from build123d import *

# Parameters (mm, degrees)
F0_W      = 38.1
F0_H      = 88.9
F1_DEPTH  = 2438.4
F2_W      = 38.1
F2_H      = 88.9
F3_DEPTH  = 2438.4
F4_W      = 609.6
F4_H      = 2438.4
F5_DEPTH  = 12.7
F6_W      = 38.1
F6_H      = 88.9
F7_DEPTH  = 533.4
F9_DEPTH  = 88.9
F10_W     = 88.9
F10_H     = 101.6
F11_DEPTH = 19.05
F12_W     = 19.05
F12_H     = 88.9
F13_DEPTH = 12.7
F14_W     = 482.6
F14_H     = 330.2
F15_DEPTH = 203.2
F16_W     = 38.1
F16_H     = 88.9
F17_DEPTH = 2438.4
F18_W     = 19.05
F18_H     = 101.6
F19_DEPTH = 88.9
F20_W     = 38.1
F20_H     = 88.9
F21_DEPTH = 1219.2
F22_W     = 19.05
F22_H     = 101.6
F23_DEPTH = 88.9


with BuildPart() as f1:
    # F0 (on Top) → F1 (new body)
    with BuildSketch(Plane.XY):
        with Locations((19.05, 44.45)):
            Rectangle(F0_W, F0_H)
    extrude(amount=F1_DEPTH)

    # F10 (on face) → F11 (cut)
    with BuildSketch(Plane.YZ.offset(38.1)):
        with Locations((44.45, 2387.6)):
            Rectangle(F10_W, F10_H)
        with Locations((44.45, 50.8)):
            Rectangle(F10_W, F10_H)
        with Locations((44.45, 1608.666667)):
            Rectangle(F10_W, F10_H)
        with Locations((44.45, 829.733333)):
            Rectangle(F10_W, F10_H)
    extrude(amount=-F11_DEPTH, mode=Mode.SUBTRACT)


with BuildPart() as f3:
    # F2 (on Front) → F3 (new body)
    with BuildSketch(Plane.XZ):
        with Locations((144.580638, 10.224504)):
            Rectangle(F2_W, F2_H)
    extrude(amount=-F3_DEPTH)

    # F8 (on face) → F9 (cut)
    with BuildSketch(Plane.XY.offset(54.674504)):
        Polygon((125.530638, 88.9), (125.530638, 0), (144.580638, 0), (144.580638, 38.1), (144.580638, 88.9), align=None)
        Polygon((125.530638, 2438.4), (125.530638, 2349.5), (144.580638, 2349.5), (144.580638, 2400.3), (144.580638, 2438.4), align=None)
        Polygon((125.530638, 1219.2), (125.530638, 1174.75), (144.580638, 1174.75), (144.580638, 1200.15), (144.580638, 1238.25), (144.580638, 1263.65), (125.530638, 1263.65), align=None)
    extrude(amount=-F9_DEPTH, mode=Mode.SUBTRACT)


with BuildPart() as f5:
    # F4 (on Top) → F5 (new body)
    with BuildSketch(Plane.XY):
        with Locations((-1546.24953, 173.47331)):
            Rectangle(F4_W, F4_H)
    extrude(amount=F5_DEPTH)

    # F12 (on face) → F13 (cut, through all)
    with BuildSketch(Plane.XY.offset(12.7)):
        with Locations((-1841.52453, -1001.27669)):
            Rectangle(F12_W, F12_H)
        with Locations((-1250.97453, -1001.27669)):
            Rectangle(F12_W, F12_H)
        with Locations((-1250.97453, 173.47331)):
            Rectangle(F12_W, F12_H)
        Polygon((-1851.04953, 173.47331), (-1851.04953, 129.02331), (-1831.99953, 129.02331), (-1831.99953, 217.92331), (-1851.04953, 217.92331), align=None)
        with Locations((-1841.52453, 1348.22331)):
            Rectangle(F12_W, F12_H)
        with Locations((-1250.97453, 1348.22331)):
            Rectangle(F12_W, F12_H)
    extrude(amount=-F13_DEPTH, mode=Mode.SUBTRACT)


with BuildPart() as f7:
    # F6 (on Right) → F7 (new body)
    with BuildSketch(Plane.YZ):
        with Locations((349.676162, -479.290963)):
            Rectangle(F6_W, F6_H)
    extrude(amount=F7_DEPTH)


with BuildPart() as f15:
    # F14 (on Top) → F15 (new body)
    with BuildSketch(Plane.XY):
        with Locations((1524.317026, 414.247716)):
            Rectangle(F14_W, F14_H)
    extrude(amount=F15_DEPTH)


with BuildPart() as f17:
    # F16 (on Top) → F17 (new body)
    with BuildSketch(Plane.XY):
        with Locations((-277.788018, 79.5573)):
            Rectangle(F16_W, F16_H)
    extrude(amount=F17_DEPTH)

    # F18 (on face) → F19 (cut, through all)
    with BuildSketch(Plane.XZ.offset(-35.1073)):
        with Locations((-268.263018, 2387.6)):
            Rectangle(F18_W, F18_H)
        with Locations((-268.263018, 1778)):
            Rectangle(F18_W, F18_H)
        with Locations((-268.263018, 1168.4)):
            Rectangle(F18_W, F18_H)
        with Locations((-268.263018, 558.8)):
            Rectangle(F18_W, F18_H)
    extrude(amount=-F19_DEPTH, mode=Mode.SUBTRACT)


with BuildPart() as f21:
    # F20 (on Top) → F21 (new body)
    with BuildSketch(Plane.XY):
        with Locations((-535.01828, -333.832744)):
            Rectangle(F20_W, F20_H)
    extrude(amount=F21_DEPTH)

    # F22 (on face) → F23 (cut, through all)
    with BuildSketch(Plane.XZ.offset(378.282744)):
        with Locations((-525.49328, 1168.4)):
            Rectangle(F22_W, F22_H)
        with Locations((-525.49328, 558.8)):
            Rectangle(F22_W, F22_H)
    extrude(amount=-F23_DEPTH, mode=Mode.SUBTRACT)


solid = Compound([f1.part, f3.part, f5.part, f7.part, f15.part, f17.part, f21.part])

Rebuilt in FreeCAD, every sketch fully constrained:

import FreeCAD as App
import Part
import Sketcher
Q = App.Units.Quantity


def add_polygon(sketch, points):
    """Adds a closed chain of lines whose ends are joined by coincident constraints."""
    first, n = sketch.GeometryCount, len(points)
    for a, b in zip(points, points[1:] + points[:1]):
        sketch.addGeometry(Part.LineSegment(App.Vector(*a, 0), App.Vector(*b, 0)), False)
    for i in range(n):
        sketch.addConstraint(Sketcher.Constraint("Coincident", first + i, 2, first + (i + 1) % n, 1))

doc = App.newDocument("Part")
body = doc.addObject("PartDesign::Body", "Body")

# Sketch on XY plane
sketch1 = body.newObject("Sketcher::SketchObject", "Sketch")
sketch1.AttachmentSupport = (doc.getObject("XY_Plane"), [""])
sketch1.MapMode = "FlatFace"
add_polygon(sketch1, [(0, 89), (0, 0), (38, 0), (38, 89)])  # lines 0-3
sketch1.addConstraint([
    Sketcher.Constraint("Vertical", 0),
    Sketcher.Constraint("Horizontal", 1),
    Sketcher.Constraint("Vertical", 2),
    Sketcher.Constraint("Horizontal", 3),
    Sketcher.Constraint("Coincident", 0, 2, -1, 1),
    Sketcher.Constraint("DistanceX", 1, 1, 1, 2, Q("1.5 in")),
    Sketcher.Constraint("DistanceY", 0, 2, 0, 1, Q("3.5 in")),
])
pad1 = body.newObject("PartDesign::Pad", "Pad")
pad1.Profile = sketch1
pad1.Length = Q("96 in")

# Sketch on YZ plane
sketch2 = body.newObject("Sketcher::SketchObject", "Sketch001")
sketch2.AttachmentSupport = (doc.getObject("YZ_Plane"), [""])
sketch2.MapMode = "FlatFace"
sketch2.AttachmentOffset = App.Placement(App.Vector(0, 0, 1.5 * 25.4), App.Rotation())
add_polygon(sketch2, [(0, 2438), (0, 2337), (89, 2337), (89, 2438)])  # lines 0-3
add_polygon(sketch2, [(0, 102), (0, 0), (89, 0), (89, 102)])  # lines 4-7
add_polygon(sketch2, [(0, 1659), (0, 1558), (89, 1558), (89, 1659)])  # lines 8-11
add_polygon(sketch2, [(0, 881), (0, 779), (89, 779), (89, 881)])  # lines 12-15
sketch2.addConstraint([
    Sketcher.Constraint("Vertical", 0),
    Sketcher.Constraint("Horizontal", 1),
    Sketcher.Constraint("Vertical", 2),
    Sketcher.Constraint("Horizontal", 3),
    Sketcher.Constraint("Vertical", 4),
    Sketcher.Constraint("Horizontal", 5),
    Sketcher.Constraint("Vertical", 6),
    Sketcher.Constraint("Horizontal", 7),
    Sketcher.Constraint("Vertical", 8),
    Sketcher.Constraint("Horizontal", 9),
    Sketcher.Constraint("Vertical", 10),
    Sketcher.Constraint("Horizontal", 11),
    Sketcher.Constraint("Vertical", 12),
    Sketcher.Constraint("Horizontal", 13),
    Sketcher.Constraint("Vertical", 14),
    Sketcher.Constraint("Horizontal", 15),
    Sketcher.Constraint("Coincident", 4, 2, -1, 1),
    Sketcher.Constraint("PointOnObject", 0, 2, -2),
    Sketcher.Constraint("PointOnObject", 8, 2, -2),
    Sketcher.Constraint("PointOnObject", 12, 2, -2),
    Sketcher.Constraint("Vertical", 2, 2, 5, 2),
    Sketcher.Constraint("Vertical", 6, 2, 9, 2),
    Sketcher.Constraint("Vertical", 10, 2, 13, 2),
    Sketcher.Constraint("Equal", 2, 4),
    Sketcher.Constraint("Equal", 6, 8),
    Sketcher.Constraint("Equal", 10, 12),
    Sketcher.Constraint("DistanceY", 0, 2, 0, 1, Q("4 in")),
    Sketcher.Constraint("DistanceX", 1, 1, 1, 2, Q("3.5 in")),
    Sketcher.Constraint("DistanceY", -1, 1, 0, 2, Q("92 in")),
    Sketcher.Constraint("DistanceY", -1, 1, 8, 2, 1557.866667),
    Sketcher.Constraint("DistanceY", -1, 1, 12, 2, 778.933333),
])
pocket1 = body.newObject("PartDesign::Pocket", "Pocket")
pocket1.Profile = sketch2
pocket1.Length = Q("0.75 in")
body2 = doc.addObject("PartDesign::Body", "Body001")

# Sketch on XZ plane
sketch3 = body2.newObject("Sketcher::SketchObject", "Sketch002")
sketch3.AttachmentSupport = (doc.getObject("XZ_Plane001"), [""])
sketch3.MapMode = "FlatFace"
add_polygon(sketch3, [(126, 55), (126, -34), (164, -34), (164, 55)])  # lines 0-3
sketch3.addConstraint([
    Sketcher.Constraint("Vertical", 0),
    Sketcher.Constraint("Horizontal", 1),
    Sketcher.Constraint("Vertical", 2),
    Sketcher.Constraint("Horizontal", 3),
    Sketcher.Constraint("DistanceX", 1, 1, 1, 2, Q("1.5 in")),
    Sketcher.Constraint("DistanceY", 0, 2, 0, 1, Q("3.5 in")),
    Sketcher.Constraint("DistanceX", -1, 1, 1, 2, 163.630638),
    Sketcher.Constraint("DistanceY", 0, 2, -1, 1, 34.225496),
])
pad2 = body2.newObject("PartDesign::Pad", "Pad001")
pad2.Profile = sketch3
pad2.Length = Q("96 in")
pad2.Reversed = True

# Sketch on XY plane
sketch4 = body2.newObject("Sketcher::SketchObject", "Sketch003")
sketch4.AttachmentSupport = (doc.getObject("XY_Plane001"), [""])
sketch4.MapMode = "FlatFace"
sketch4.AttachmentOffset = App.Placement(App.Vector(0, 0, 54.674504), App.Rotation())
add_polygon(sketch4, [(126, 89), (126, 0), (145, 0), (145, 89)])  # lines 0-3
add_polygon(sketch4, [(126, 2438), (126, 2350), (145, 2350), (145, 2438)])  # lines 4-7
add_polygon(sketch4, [(126, 1175), (145, 1175), (145, 1264), (126, 1264)])  # lines 8-11
sketch4.addConstraint([
    Sketcher.Constraint("Vertical", 0),
    Sketcher.Constraint("Horizontal", 1),
    Sketcher.Constraint("Vertical", 2),
    Sketcher.Constraint("Horizontal", 3),
    Sketcher.Constraint("Vertical", 4),
    Sketcher.Constraint("Horizontal", 5),
    Sketcher.Constraint("Vertical", 6),
    Sketcher.Constraint("Horizontal", 7),
    Sketcher.Constraint("Horizontal", 8),
    Sketcher.Constraint("Vertical", 9),
    Sketcher.Constraint("Horizontal", 10),
    Sketcher.Constraint("Vertical", 11),
    Sketcher.Constraint("PointOnObject", 0, 2, -1),
    Sketcher.Constraint("Vertical", 3, 2, 4, 2),
    Sketcher.Constraint("Vertical", 2, 2, 5, 2),
    Sketcher.Constraint("Vertical", 6, 2, 8, 2),
    Sketcher.Constraint("Vertical", 7, 2, 10, 2),
    Sketcher.Constraint("Equal", 2, 4),
    Sketcher.Constraint("Equal", 6, 9),
    Sketcher.Constraint("DistanceY", 0, 2, 0, 1, Q("3.5 in")),
    Sketcher.Constraint("DistanceY", -1, 1, 6, 2, Q("96 in")),
    Sketcher.Constraint("DistanceX", 1, 1, 1, 2, Q("0.75 in")),
    Sketcher.Constraint("DistanceY", -1, 1, 8, 2, Q("46.25 in")),
    Sketcher.Constraint("DistanceX", -1, 1, 1, 2, 144.580638),
])
pocket2 = body2.newObject("PartDesign::Pocket", "Pocket001")
pocket2.Profile = sketch4
pocket2.Length = Q("3.5 in")
body3 = doc.addObject("PartDesign::Body", "Body002")

# Sketch on XY plane
sketch5 = body3.newObject("Sketcher::SketchObject", "Sketch004")
sketch5.AttachmentSupport = (doc.getObject("XY_Plane002"), [""])
sketch5.MapMode = "FlatFace"
add_polygon(sketch5, [(-1851, 1393), (-1851, -1046), (-1241, -1046), (-1241, 1393)])  # lines 0-3
sketch5.addConstraint([
    Sketcher.Constraint("Vertical", 0),
    Sketcher.Constraint("Horizontal", 1),
    Sketcher.Constraint("Vertical", 2),
    Sketcher.Constraint("Horizontal", 3),
    Sketcher.Constraint("DistanceX", 1, 1, 1, 2, Q("24 in")),
    Sketcher.Constraint("DistanceY", 0, 2, 0, 1, Q("96 in")),
    Sketcher.Constraint("DistanceX", 0, 2, -1, 1, 1851.04953),
    Sketcher.Constraint("DistanceY", 0, 2, -1, 1, 1045.72669),
])
pad3 = body3.newObject("PartDesign::Pad", "Pad002")
pad3.Profile = sketch5
pad3.Length = Q("0.5 in")

# Sketch on XY plane
sketch6 = body3.newObject("Sketcher::SketchObject", "Sketch005")
sketch6.AttachmentSupport = (doc.getObject("XY_Plane002"), [""])
sketch6.MapMode = "FlatFace"
sketch6.AttachmentOffset = App.Placement(App.Vector(0, 0, 0.5 * 25.4), App.Rotation())
add_polygon(sketch6, [(-1851, -957), (-1851, -1046), (-1832, -1046), (-1832, -957)])  # lines 0-3
add_polygon(sketch6, [(-1260, -957), (-1260, -1046), (-1241, -1046), (-1241, -957)])  # lines 4-7
add_polygon(sketch6, [(-1260, 218), (-1260, 129), (-1241, 129), (-1241, 218)])  # lines 8-11
add_polygon(sketch6, [(-1851, 129), (-1832, 129), (-1832, 218), (-1851, 218)])  # lines 12-15
add_polygon(sketch6, [(-1851, 1393), (-1851, 1304), (-1832, 1304), (-1832, 1393)])  # lines 16-19
add_polygon(sketch6, [(-1260, 1393), (-1260, 1304), (-1241, 1304), (-1241, 1393)])  # lines 20-23
sketch6.addConstraint([
    Sketcher.Constraint("Vertical", 0),
    Sketcher.Constraint("Horizontal", 1),
    Sketcher.Constraint("Vertical", 2),
    Sketcher.Constraint("Horizontal", 3),
    Sketcher.Constraint("Vertical", 4),
    Sketcher.Constraint("Horizontal", 5),
    Sketcher.Constraint("Vertical", 6),
    Sketcher.Constraint("Horizontal", 7),
    Sketcher.Constraint("Vertical", 8),
    Sketcher.Constraint("Horizontal", 9),
    Sketcher.Constraint("Vertical", 10),
    Sketcher.Constraint("Horizontal", 11),
    Sketcher.Constraint("Horizontal", 12),
    Sketcher.Constraint("Vertical", 13),
    Sketcher.Constraint("Horizontal", 14),
    Sketcher.Constraint("Vertical", 15),
    Sketcher.Constraint("Vertical", 16),
    Sketcher.Constraint("Horizontal", 17),
    Sketcher.Constraint("Vertical", 18),
    Sketcher.Constraint("Horizontal", 19),
    Sketcher.Constraint("Vertical", 20),
    Sketcher.Constraint("Horizontal", 21),
    Sketcher.Constraint("Vertical", 22),
    Sketcher.Constraint("Horizontal", 23),
    Sketcher.Constraint("Horizontal", 1, 2, 4, 2),
    Sketcher.Constraint("Horizontal", 3, 2, 6, 2),
    Sketcher.Constraint("Horizontal", 9, 2, 12, 2),
    Sketcher.Constraint("Horizontal", 11, 2, 13, 2),
    Sketcher.Constraint("Horizontal", 17, 2, 20, 2),
    Sketcher.Constraint("Horizontal", 19, 2, 22, 2),
    Sketcher.Constraint("Vertical", 7, 2, 8, 2),
    Sketcher.Constraint("Vertical", 6, 2, 9, 2),
    Sketcher.Constraint("Vertical", 2, 2, 12, 2),
    Sketcher.Constraint("Vertical", 3, 2, 14, 2),
    Sketcher.Constraint("Vertical", 15, 2, 16, 2),
    Sketcher.Constraint("Vertical", 13, 2, 17, 2),
    Sketcher.Constraint("Vertical", 11, 2, 20, 2),
    Sketcher.Constraint("Vertical", 10, 2, 21, 2),
    Sketcher.Constraint("Equal", 3, 5),
    Sketcher.Constraint("Equal", 6, 8),
    Sketcher.Constraint("Equal", 15, 16),
    Sketcher.Constraint("DistanceY", 0, 2, 0, 1, Q("3.5 in")),
    Sketcher.Constraint("DistanceX", 0, 2, 5, 2, Q("24 in")),
    Sketcher.Constraint("DistanceX", 1, 1, 1, 2, Q("0.75 in")),
    Sketcher.Constraint("DistanceY", 7, 2, 8, 2, Q("42.75 in")),
    Sketcher.Constraint("DistanceY", 14, 2, 16, 2, Q("42.75 in")),
    Sketcher.Constraint("DistanceX", 0, 2, -1, 1, 1851.04953),
    Sketcher.Constraint("DistanceY", 0, 2, -1, 1, 1045.72669),
])
pocket3 = body3.newObject("PartDesign::Pocket", "Pocket002")
pocket3.Profile = sketch6
pocket3.Type = "ThroughAll"
body4 = doc.addObject("PartDesign::Body", "Body003")

# Sketch on YZ plane
sketch7 = body4.newObject("Sketcher::SketchObject", "Sketch006")
sketch7.AttachmentSupport = (doc.getObject("YZ_Plane003"), [""])
sketch7.MapMode = "FlatFace"
add_polygon(sketch7, [(331, -435), (331, -524), (369, -524), (369, -435)])  # lines 0-3
sketch7.addConstraint([
    Sketcher.Constraint("Vertical", 0),
    Sketcher.Constraint("Horizontal", 1),
    Sketcher.Constraint("Vertical", 2),
    Sketcher.Constraint("Horizontal", 3),
    Sketcher.Constraint("DistanceX", 1, 1, 1, 2, Q("1.5 in")),
    Sketcher.Constraint("DistanceY", 0, 2, 0, 1, Q("3.5 in")),
    Sketcher.Constraint("DistanceX", -1, 1, 0, 2, 330.626162),
    Sketcher.Constraint("DistanceY", 0, 2, -1, 1, 523.740963),
])
pad4 = body4.newObject("PartDesign::Pad", "Pad003")
pad4.Profile = sketch7
pad4.Length = Q("21 in")
body5 = doc.addObject("PartDesign::Body", "Body004")

# Sketch on XY plane
sketch8 = body5.newObject("Sketcher::SketchObject", "Sketch007")
sketch8.AttachmentSupport = (doc.getObject("XY_Plane004"), [""])
sketch8.MapMode = "FlatFace"
add_polygon(sketch8, [(1283, 579), (1283, 249), (1766, 249), (1766, 579)])  # lines 0-3
sketch8.addConstraint([
    Sketcher.Constraint("Vertical", 0),
    Sketcher.Constraint("Horizontal", 1),
    Sketcher.Constraint("Vertical", 2),
    Sketcher.Constraint("Horizontal", 3),
    Sketcher.Constraint("DistanceX", 1, 1, 1, 2, Q("19 in")),
    Sketcher.Constraint("DistanceY", 0, 2, 0, 1, Q("13 in")),
    Sketcher.Constraint("DistanceX", -1, 1, 0, 2, 1283.017026),
    Sketcher.Constraint("DistanceY", -1, 1, 0, 2, 249.147716),
])
pad5 = body5.newObject("PartDesign::Pad", "Pad004")
pad5.Profile = sketch8
pad5.Length = Q("8 in")
body6 = doc.addObject("PartDesign::Body", "Body005")

# Sketch on XY plane
sketch9 = body6.newObject("Sketcher::SketchObject", "Sketch008")
sketch9.AttachmentSupport = (doc.getObject("XY_Plane005"), [""])
sketch9.MapMode = "FlatFace"
add_polygon(sketch9, [(-297, 124), (-297, 35), (-259, 35), (-259, 124)])  # lines 0-3
sketch9.addConstraint([
    Sketcher.Constraint("Vertical", 0),
    Sketcher.Constraint("Horizontal", 1),
    Sketcher.Constraint("Vertical", 2),
    Sketcher.Constraint("Horizontal", 3),
    Sketcher.Constraint("DistanceX", 1, 1, 1, 2, Q("1.5 in")),
    Sketcher.Constraint("DistanceY", 0, 2, 0, 1, Q("3.5 in")),
    Sketcher.Constraint("DistanceY", -1, 1, 0, 2, 35.1073),
    Sketcher.Constraint("DistanceX", 0, 2, -1, 1, 296.838018),
])
pad6 = body6.newObject("PartDesign::Pad", "Pad005")
pad6.Profile = sketch9
pad6.Length = Q("96 in")

# Sketch on XZ plane
sketch10 = body6.newObject("Sketcher::SketchObject", "Sketch009")
sketch10.AttachmentSupport = (doc.getObject("XZ_Plane005"), [""])
sketch10.MapMode = "FlatFace"
sketch10.AttachmentOffset = App.Placement(App.Vector(0, 0, -35.1073), App.Rotation())
add_polygon(sketch10, [(-278, 2438), (-278, 2337), (-259, 2337), (-259, 2438)])  # lines 0-3
add_polygon(sketch10, [(-278, 1829), (-278, 1727), (-259, 1727), (-259, 1829)])  # lines 4-7
add_polygon(sketch10, [(-278, 1219), (-278, 1118), (-259, 1118), (-259, 1219)])  # lines 8-11
add_polygon(sketch10, [(-278, 610), (-278, 508), (-259, 508), (-259, 610)])  # lines 12-15
sketch10.addConstraint([
    Sketcher.Constraint("Vertical", 0),
    Sketcher.Constraint("Horizontal", 1),
    Sketcher.Constraint("Vertical", 2),
    Sketcher.Constraint("Horizontal", 3),
    Sketcher.Constraint("Vertical", 4),
    Sketcher.Constraint("Horizontal", 5),
    Sketcher.Constraint("Vertical", 6),
    Sketcher.Constraint("Horizontal", 7),
    Sketcher.Constraint("Vertical", 8),
    Sketcher.Constraint("Horizontal", 9),
    Sketcher.Constraint("Vertical", 10),
    Sketcher.Constraint("Horizontal", 11),
    Sketcher.Constraint("Vertical", 12),
    Sketcher.Constraint("Horizontal", 13),
    Sketcher.Constraint("Vertical", 14),
    Sketcher.Constraint("Horizontal", 15),
    Sketcher.Constraint("Vertical", 3, 2, 4, 2),
    Sketcher.Constraint("Vertical", 2, 2, 5, 2),
    Sketcher.Constraint("Vertical", 7, 2, 8, 2),
    Sketcher.Constraint("Vertical", 6, 2, 9, 2),
    Sketcher.Constraint("Vertical", 11, 2, 12, 2),
    Sketcher.Constraint("Vertical", 10, 2, 13, 2),
    Sketcher.Constraint("Equal", 2, 4),
    Sketcher.Constraint("Equal", 6, 8),
    Sketcher.Constraint("Equal", 10, 12),
    Sketcher.Constraint("DistanceY", 0, 2, 0, 1, Q("4 in")),
    Sketcher.Constraint("DistanceY", -1, 1, 0, 2, Q("92 in")),
    Sketcher.Constraint("DistanceY", -1, 1, 4, 2, Q("68 in")),
    Sketcher.Constraint("DistanceY", -1, 1, 8, 2, Q("44 in")),
    Sketcher.Constraint("DistanceY", -1, 1, 12, 2, Q("20 in")),
    Sketcher.Constraint("DistanceX", 1, 1, 1, 2, Q("0.75 in")),
    Sketcher.Constraint("DistanceX", 0, 2, -1, 1, 277.788018),
])
pocket4 = body6.newObject("PartDesign::Pocket", "Pocket003")
pocket4.Profile = sketch10
pocket4.Type = "ThroughAll"
body7 = doc.addObject("PartDesign::Body", "Body006")

# Sketch on XY plane
sketch11 = body7.newObject("Sketcher::SketchObject", "Sketch010")
sketch11.AttachmentSupport = (doc.getObject("XY_Plane006"), [""])
sketch11.MapMode = "FlatFace"
add_polygon(sketch11, [(-554, -289), (-554, -378), (-516, -378), (-516, -289)])  # lines 0-3
sketch11.addConstraint([
    Sketcher.Constraint("Vertical", 0),
    Sketcher.Constraint("Horizontal", 1),
    Sketcher.Constraint("Vertical", 2),
    Sketcher.Constraint("Horizontal", 3),
    Sketcher.Constraint("DistanceX", 1, 1, 1, 2, Q("1.5 in")),
    Sketcher.Constraint("DistanceY", 0, 2, 0, 1, Q("3.5 in")),
    Sketcher.Constraint("DistanceX", 0, 2, -1, 1, 554.06828),
    Sketcher.Constraint("DistanceY", 0, 2, -1, 1, 378.282744),
])
pad7 = body7.newObject("PartDesign::Pad", "Pad006")
pad7.Profile = sketch11
pad7.Length = Q("48 in")

# Sketch on XZ plane
sketch12 = body7.newObject("Sketcher::SketchObject", "Sketch011")
sketch12.AttachmentSupport = (doc.getObject("XZ_Plane006"), [""])
sketch12.MapMode = "FlatFace"
sketch12.AttachmentOffset = App.Placement(App.Vector(0, 0, 378.282744), App.Rotation())
add_polygon(sketch12, [(-535, 1219), (-535, 1118), (-516, 1118), (-516, 1219)])  # lines 0-3
add_polygon(sketch12, [(-535, 610), (-535, 508), (-516, 508), (-516, 610)])  # lines 4-7
sketch12.addConstraint([
    Sketcher.Constraint("Vertical", 0),
    Sketcher.Constraint("Horizontal", 1),
    Sketcher.Constraint("Vertical", 2),
    Sketcher.Constraint("Horizontal", 3),
    Sketcher.Constraint("Vertical", 4),
    Sketcher.Constraint("Horizontal", 5),
    Sketcher.Constraint("Vertical", 6),
    Sketcher.Constraint("Horizontal", 7),
    Sketcher.Constraint("Vertical", 3, 2, 4, 2),
    Sketcher.Constraint("Vertical", 2, 2, 5, 2),
    Sketcher.Constraint("Equal", 2, 4),
    Sketcher.Constraint("DistanceY", 0, 2, 0, 1, Q("4 in")),
    Sketcher.Constraint("DistanceY", -1, 1, 0, 2, Q("44 in")),
    Sketcher.Constraint("DistanceY", -1, 1, 4, 2, Q("20 in")),
    Sketcher.Constraint("DistanceX", 1, 1, 1, 2, Q("0.75 in")),
    Sketcher.Constraint("DistanceX", 0, 2, -1, 1, 535.01828),
])
pocket5 = body7.newObject("PartDesign::Pocket", "Pocket004")
pocket5.Profile = sketch12
pocket5.Type = "ThroughAll"

doc.recompute()
